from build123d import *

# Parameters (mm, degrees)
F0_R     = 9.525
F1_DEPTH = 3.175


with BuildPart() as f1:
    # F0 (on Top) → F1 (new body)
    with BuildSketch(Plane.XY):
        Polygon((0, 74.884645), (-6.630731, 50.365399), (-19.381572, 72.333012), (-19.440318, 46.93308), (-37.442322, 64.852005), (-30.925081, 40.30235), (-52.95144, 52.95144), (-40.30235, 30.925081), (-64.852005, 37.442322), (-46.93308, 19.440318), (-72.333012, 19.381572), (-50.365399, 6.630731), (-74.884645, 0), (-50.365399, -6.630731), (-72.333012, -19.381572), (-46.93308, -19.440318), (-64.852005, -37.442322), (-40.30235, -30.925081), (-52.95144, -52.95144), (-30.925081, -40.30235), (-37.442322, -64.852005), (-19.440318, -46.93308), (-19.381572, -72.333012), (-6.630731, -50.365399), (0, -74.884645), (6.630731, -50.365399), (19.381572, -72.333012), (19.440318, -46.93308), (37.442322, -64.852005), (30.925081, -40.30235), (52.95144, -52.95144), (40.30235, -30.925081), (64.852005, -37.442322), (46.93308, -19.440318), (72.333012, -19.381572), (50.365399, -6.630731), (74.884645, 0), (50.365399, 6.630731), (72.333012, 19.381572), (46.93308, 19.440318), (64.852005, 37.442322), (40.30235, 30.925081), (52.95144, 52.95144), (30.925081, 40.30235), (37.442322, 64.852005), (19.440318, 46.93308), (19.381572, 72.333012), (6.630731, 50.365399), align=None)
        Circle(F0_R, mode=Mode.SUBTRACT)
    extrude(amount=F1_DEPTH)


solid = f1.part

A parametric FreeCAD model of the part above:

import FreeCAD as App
import Part
import Sketcher

V = App.Vector
Q = App.Units.Quantity


def add_polygon(sketch, points):
    """Adds a closed chain of lines whose ends are joined by coincident constraints."""
    first, n = sketch.GeometryCount, len(points)
    for a, b in zip(points, points[1:] + points[:1]):
        sketch.addGeometry(Part.LineSegment(App.Vector(*a, 0), App.Vector(*b, 0)), False)
    for i in range(n):
        sketch.addConstraint(Sketcher.Constraint("Coincident", first + i, 2, first + (i + 1) % n, 1))

doc = App.newDocument("Part")
body = doc.addObject("PartDesign::Body", "Body")

# Sketch on XY plane
sketch1 = body.newObject("Sketcher::SketchObject", "Sketch")
sketch1.AttachmentSupport = (doc.getObject("XY_Plane"), [""])
sketch1.MapMode = "FlatFace"
add_polygon(sketch1, [(0, 75), (-7, 50), (-19, 72), (-19, 47), (-37, 65), (-31, 40), (-53, 53), (-40, 31), (-65, 37), (-47, 19), (-72, 19), (-50, 7), (-75, 0), (-50, -7), (-72, -19), (-47, -19), (-65, -37), (-40, -31), (-53, -53), (-31, -40), (-37, -65), (-19, -47), (-19, -72), (-7, -50), (0, -75), (7, -50), (19, -72), (19, -47), (37, -65), (31, -40), (53, -53), (40, -31), (65, -37), (47, -19), (72, -19), (50, -7), (75, 0), (50, 7), (72, 19), (47, 19), (65, 37), (40, 31), (53, 53), (31, 40), (37, 65), (19, 47), (19, 72), (7, 50)])  # lines 0-47
sketch1.addGeometry(Part.Circle(V(0, 0, 0), V(0, 0, 1), 10), False)  # 48
sketch1.addConstraint([
    Sketcher.Constraint("Coincident", 48, 3, -1, 1),
    Sketcher.Constraint("Symmetric", 0, 2, 24, 2, -1, 1),
    Sketcher.Constraint("Symmetric", 1, 2, 25, 2, -1, 1),
    Sketcher.Constraint("Symmetric", 2, 2, 26, 2, -1, 1),
    Sketcher.Constraint("Symmetric", 3, 2, 27, 2, -1, 1),
    Sketcher.Constraint("Symmetric", 4, 2, 28, 2, -1, 1),
    Sketcher.Constraint("Symmetric", 5, 2, 29, 2, -1, 1),
    Sketcher.Constraint("Symmetric", 6, 2, 30, 2, -1, 1),
    Sketcher.Constraint("Symmetric", 7, 2, 31, 2, -1, 1),
    Sketcher.Constraint("Symmetric", 8, 2, 32, 2, -1, 1),
    Sketcher.Constraint("Symmetric", 9, 2, 33, 2, -1, 1),
    Sketcher.Constraint("Symmetric", 10, 2, 34, 2, -1, 1),
    Sketcher.Constraint("Symmetric", 11, 2, 35, 2, -1, 1),
    Sketcher.Constraint("Symmetric", 12, 2, 36, 2, -1, 1),
    Sketcher.Constraint("Symmetric", 13, 2, 37, 2, -1, 1),
    Sketcher.Constraint("Symmetric", 14, 2, 38, 2, -1, 1),
    Sketcher.Constraint("Symmetric", 15, 2, 39, 2, -1, 1),
    Sketcher.Constraint("Symmetric", 16, 2, 40, 2, -1, 1),
    Sketcher.Constraint("Symmetric", 17, 2, 41, 2, -1, 1),
    Sketcher.Constraint("Symmetric", 18, 2, 42, 2, -1, 1),
    Sketcher.Constraint("Symmetric", 19, 2, 43, 2, -1, 1),
    Sketcher.Constraint("Symmetric", 20, 2, 44, 2, -1, 1),
    Sketcher.Constraint("Symmetric", 21, 2, 45, 2, -1, 1),
    Sketcher.Constraint("Symmetric", 22, 2, 46, 2, -1, 1),
    Sketcher.Constraint("Symmetric", 23, 2, 47, 2, -1, 1),
    Sketcher.Constraint("Symmetric", 22, 2, 24, 2, -2),
    Sketcher.Constraint("Symmetric", 21, 2, 25, 2, -2),
    Sketcher.Constraint("Symmetric", 20, 2, 26, 2, -2),
    Sketcher.Constraint("Symmetric", 19, 2, 27, 2, -2),
    Sketcher.Constraint("Symmetric", 18, 2, 28, 2, -2),
    Sketcher.Constraint("Symmetric", 17, 2, 29, 2, -2),
    Sketcher.Constraint("Symmetric", 16, 2, 30, 2, -2),
    Sketcher.Constraint("Symmetric", 15, 2, 31, 2, -2),
    Sketcher.Constraint("Symmetric", 14, 2, 32, 2, -2),
    Sketcher.Constraint("Symmetric", 13, 2, 33, 2, -2),
    Sketcher.Constraint("Symmetric", 12, 2, 34, 2, -2),
    Sketcher.Constraint("PointOnObject", 11, 2, -1),
    Sketcher.Constraint("PointOnObject", 23, 2, -2),
    Sketcher.Constraint("Perpendicular", 0, 12),
    Sketcher.Constraint("Perpendicular", 1, 13),
    Sketcher.Constraint("Perpendicular", 2, 14),
    Sketcher.Constraint("Perpendicular", 3, 15),
    Sketcher.Constraint("Perpendicular", 4, 16),
    Sketcher.Constraint("Perpendicular", 5, 17),
    Sketcher.Constraint("Equal", 0, 1),
    Sketcher.Constraint("Equal", 1, 2),
    Sketcher.Constraint("Equal", 2, 3),
    Sketcher.Constraint("Equal", 3, 4),
    Sketcher.Constraint("Equal", 4, 5),
    Sketcher.Constraint("Equal", 5, 6),
    Sketcher.Constraint("Equal", 6, 7),
    Sketcher.Constraint("Equal", 7, 8),
    Sketcher.Constraint("Equal", 8, 9),
    Sketcher.Constraint("Equal", 9, 10),
    Sketcher.Constraint("Equal", 10, 11),
    Sketcher.Constraint("Diameter", 48, Q("0.75 in")),
    Sketcher.Constraint("Distance", 0, Q("1 in")),
    Sketcher.Constraint("DistanceY", -1, 1, 0, 2, 50.365399),
    Sketcher.Constraint("DistanceY", 6, 2, 2, 2, 16.007999),
    Sketcher.Constraint("DistanceX", 0, 2, -1, 1, 6.630731),
    Sketcher.Constraint("DistanceX", 1, 2, -1, 1, 19.381572),
    Sketcher.Constraint("DistanceX", 2, 2, -1, 1, 19.440318),
    Sketcher.Constraint("DistanceX", 3, 2, -1, 1, 37.442322),
])
pad1 = body.newObject("PartDesign::Pad", "Pad")
pad1.Profile = sketch1
pad1.Length = Q("0.125 in")

doc.recompute()
